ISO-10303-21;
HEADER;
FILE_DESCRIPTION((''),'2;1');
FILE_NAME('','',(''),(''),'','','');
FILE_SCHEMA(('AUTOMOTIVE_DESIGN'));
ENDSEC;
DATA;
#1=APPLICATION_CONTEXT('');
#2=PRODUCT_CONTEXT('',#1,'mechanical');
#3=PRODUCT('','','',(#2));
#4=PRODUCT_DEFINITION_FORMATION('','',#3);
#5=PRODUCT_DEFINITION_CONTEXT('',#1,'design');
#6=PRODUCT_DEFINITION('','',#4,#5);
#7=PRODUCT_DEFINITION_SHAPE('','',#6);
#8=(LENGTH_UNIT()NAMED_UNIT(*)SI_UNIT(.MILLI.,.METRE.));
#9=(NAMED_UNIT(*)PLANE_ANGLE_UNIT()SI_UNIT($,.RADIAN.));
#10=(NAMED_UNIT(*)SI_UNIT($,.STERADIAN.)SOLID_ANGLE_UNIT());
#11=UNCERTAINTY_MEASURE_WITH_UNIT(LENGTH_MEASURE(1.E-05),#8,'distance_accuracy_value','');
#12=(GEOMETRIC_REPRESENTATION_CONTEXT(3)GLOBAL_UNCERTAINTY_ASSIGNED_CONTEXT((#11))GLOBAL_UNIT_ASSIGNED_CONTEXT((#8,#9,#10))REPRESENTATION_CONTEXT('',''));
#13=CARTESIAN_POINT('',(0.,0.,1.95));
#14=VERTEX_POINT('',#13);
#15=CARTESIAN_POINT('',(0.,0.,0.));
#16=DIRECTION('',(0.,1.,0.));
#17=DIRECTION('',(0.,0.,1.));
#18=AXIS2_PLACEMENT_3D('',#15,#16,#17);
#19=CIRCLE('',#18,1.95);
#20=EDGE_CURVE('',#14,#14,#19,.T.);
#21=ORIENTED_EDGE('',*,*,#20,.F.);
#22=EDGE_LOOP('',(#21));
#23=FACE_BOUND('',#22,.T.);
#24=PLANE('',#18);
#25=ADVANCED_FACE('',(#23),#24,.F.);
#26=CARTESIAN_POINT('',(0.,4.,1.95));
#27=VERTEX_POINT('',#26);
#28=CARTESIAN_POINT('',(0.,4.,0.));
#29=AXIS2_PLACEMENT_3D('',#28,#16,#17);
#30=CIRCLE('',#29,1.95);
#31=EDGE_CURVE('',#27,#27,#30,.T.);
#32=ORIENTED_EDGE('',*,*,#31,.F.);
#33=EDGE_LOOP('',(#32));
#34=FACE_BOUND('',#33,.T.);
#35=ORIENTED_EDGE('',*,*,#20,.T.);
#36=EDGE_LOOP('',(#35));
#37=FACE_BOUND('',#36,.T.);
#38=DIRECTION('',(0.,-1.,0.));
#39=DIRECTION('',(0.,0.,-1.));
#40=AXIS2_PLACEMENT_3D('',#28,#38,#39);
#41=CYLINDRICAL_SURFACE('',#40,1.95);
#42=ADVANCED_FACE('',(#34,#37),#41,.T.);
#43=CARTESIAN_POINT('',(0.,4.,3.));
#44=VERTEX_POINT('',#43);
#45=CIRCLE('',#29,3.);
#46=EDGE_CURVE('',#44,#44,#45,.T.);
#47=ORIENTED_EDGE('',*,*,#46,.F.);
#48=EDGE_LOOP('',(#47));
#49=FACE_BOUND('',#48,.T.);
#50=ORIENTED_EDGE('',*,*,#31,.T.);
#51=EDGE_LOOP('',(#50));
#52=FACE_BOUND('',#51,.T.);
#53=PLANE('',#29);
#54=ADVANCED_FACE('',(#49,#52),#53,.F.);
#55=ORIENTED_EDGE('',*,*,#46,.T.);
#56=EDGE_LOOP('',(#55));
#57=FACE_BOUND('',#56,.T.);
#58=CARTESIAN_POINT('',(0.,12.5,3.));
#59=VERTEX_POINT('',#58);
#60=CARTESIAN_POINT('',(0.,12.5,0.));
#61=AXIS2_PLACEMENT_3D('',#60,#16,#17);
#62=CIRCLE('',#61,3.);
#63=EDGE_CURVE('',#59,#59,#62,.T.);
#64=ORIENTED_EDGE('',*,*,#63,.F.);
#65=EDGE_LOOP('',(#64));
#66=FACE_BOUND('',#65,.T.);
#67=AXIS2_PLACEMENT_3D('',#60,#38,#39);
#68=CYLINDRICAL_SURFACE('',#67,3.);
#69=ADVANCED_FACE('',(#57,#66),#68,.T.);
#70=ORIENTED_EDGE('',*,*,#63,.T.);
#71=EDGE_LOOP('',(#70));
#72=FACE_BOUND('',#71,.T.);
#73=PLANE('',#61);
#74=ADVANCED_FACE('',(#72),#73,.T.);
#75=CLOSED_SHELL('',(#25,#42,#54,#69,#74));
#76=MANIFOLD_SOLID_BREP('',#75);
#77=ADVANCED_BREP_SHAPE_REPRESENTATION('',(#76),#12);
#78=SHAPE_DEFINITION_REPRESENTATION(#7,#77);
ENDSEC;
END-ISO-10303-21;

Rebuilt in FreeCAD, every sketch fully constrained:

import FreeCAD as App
import Part
import Sketcher
from FreeCAD import Vector
Q = App.Units.Quantity

doc = App.newDocument("Part")
params = doc.addObject("Spreadsheet::Sheet", "Params")
for row, (alias, value) in enumerate([
    ("sketch1_diameter", "3.9 mm"),
    ("pad1_length", "4 mm"),
    ("sketch2_diameter", "6 mm"),
    ("pad2_length", "8.5 mm"),
], start=1):
    params.set(f"A{row}", alias)
    params.set(f"B{row}", "=" + value)
    params.setAlias(f"B{row}", alias)

body = doc.addObject("PartDesign::Body", "Body")

# Sketch on XZ plane
sketch1 = body.newObject("Sketcher::SketchObject", "Sketch")
sketch1.AttachmentSupport = (doc.getObject("XZ_Plane"), [""])
sketch1.MapMode = "FlatFace"
sketch1.addGeometry(Part.Circle(Vector(0, 0, 0), Vector(0, 0, 1), 1.9), False)
sketch1.addConstraint([
    Sketcher.Constraint("Coincident", 0, 3, -1, 1),
    Sketcher.Constraint("Diameter", 0, Q("3.9 mm")),
])
sketch1.setExpression("Constraints[1]", "Params.sketch1_diameter")
pad1 = body.newObject("PartDesign::Pad", "Pad")
pad1.Profile = sketch1
pad1.setExpression("Length", "Params.pad1_length")
pad1.Reversed = True

# Sketch on XZ plane
sketch2 = body.newObject("Sketcher::SketchObject", "Sketch001")
sketch2.AttachmentSupport = (doc.getObject("XZ_Plane"), [""])
sketch2.MapMode = "FlatFace"
sketch2.AttachmentOffset = App.Placement(Vector(0, 0, -4), App.Rotation())
sketch2.addGeometry(Part.Circle(Vector(0, 0, 0), Vector(0, 0, 1), 3), False)
sketch2.addConstraint([
    Sketcher.Constraint("Coincident", 0, 3, -1, 1),
    Sketcher.Constraint("Diameter", 0, Q("6 mm")),
])
sketch2.setExpression("Constraints[1]", "Params.sketch2_diameter")
pad2 = body.newObject("PartDesign::Pad", "Pad001")
pad2.Profile = sketch2
pad2.setExpression("Length", "Params.pad2_length")
pad2.Reversed = True

doc.recompute()
